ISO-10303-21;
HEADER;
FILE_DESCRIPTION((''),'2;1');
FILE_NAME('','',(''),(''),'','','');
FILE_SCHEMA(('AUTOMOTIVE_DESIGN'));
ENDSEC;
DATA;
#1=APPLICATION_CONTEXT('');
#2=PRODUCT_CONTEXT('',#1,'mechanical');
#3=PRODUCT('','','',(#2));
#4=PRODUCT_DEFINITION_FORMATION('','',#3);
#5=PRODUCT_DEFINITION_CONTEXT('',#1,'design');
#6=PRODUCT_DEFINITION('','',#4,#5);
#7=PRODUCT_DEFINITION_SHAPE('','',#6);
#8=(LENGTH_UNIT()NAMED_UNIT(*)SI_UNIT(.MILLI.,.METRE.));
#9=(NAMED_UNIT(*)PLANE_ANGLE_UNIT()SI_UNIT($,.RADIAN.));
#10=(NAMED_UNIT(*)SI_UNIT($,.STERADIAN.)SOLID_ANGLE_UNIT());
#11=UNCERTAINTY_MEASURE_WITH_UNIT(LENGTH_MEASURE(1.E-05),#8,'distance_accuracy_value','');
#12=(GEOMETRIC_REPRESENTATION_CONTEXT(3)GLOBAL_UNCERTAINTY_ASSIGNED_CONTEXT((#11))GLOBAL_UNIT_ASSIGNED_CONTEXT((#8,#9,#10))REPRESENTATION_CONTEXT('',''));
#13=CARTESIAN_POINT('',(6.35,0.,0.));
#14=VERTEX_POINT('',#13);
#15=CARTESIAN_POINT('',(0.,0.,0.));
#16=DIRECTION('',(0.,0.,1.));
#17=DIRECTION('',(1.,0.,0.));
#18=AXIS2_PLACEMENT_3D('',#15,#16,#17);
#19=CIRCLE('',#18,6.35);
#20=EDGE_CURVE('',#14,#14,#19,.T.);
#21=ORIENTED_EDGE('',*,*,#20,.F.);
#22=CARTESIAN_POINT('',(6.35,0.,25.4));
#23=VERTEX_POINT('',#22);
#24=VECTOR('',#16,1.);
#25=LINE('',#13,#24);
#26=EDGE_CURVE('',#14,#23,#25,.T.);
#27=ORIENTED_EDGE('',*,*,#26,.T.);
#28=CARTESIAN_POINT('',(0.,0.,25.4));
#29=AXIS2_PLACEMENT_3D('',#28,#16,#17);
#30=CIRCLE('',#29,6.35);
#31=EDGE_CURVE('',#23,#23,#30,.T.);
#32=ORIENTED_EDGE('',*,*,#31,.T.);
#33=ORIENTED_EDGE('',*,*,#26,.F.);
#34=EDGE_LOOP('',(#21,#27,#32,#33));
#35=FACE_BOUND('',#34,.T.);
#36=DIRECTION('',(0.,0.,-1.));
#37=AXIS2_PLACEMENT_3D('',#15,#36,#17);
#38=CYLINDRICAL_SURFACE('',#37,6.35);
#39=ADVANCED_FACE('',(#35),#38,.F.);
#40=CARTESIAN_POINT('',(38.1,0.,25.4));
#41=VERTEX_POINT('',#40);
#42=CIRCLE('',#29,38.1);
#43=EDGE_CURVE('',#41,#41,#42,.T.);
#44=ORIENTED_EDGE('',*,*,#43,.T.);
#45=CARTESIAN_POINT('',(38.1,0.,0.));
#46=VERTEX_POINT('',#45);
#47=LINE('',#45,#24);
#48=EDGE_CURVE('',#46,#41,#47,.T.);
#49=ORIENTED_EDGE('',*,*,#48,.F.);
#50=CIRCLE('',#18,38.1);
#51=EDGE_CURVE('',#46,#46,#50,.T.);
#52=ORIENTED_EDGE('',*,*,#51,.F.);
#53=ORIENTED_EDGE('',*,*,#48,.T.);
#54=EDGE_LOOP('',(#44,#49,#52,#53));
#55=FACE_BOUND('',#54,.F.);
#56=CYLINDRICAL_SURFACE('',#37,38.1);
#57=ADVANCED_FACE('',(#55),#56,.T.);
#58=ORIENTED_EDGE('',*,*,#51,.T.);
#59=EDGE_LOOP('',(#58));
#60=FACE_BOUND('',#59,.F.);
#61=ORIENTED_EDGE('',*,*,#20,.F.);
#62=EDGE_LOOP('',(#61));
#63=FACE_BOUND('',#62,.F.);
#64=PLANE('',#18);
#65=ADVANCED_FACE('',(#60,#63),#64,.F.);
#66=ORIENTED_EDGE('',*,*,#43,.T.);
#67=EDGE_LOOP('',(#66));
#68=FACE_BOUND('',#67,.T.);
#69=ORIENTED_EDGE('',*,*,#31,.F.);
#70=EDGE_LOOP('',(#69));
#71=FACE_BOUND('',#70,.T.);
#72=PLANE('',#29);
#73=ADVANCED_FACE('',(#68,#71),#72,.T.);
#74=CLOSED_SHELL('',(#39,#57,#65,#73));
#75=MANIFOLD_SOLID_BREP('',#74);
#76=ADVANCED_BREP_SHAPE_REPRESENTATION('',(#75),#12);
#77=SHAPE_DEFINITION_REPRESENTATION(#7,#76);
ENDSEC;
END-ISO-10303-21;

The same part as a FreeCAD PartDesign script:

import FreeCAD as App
import Part
import Sketcher
from FreeCAD import Vector
Q = App.Units.Quantity

doc = App.newDocument("Part")
body = doc.addObject("PartDesign::Body", "Body")

# Sketch on XY plane
sketch1 = doc.addObject("Sketcher::SketchObject", "Sketch")
body.addObject(sketch1)
sketch1.AttachmentSupport = (doc.XY_Plane, [""])
sketch1.MapMode = "FlatFace"
sketch1.addGeometry([
    Part.Circle(Vector(0, 0, 0), Vector(0, 0, 1), 38.1),
    Part.Circle(Vector(0, 0, 0), Vector(0, 0, 1), 6.35),
], False)
sketch1.addConstraint([
    Sketcher.Constraint("Coincident", 0, 3, -1, 1),
    Sketcher.Constraint("Coincident", 1, 3, -1, 1),
    Sketcher.Constraint("Diameter", 0, Q("3 in")),
    Sketcher.Constraint("Diameter", 1, Q("0.5 in")),
])
pad1 = doc.addObject("PartDesign::Pad", "Pad")
body.addObject(pad1)
pad1.Profile = sketch1
pad1.Length = Q("1 in")

doc.recompute()
